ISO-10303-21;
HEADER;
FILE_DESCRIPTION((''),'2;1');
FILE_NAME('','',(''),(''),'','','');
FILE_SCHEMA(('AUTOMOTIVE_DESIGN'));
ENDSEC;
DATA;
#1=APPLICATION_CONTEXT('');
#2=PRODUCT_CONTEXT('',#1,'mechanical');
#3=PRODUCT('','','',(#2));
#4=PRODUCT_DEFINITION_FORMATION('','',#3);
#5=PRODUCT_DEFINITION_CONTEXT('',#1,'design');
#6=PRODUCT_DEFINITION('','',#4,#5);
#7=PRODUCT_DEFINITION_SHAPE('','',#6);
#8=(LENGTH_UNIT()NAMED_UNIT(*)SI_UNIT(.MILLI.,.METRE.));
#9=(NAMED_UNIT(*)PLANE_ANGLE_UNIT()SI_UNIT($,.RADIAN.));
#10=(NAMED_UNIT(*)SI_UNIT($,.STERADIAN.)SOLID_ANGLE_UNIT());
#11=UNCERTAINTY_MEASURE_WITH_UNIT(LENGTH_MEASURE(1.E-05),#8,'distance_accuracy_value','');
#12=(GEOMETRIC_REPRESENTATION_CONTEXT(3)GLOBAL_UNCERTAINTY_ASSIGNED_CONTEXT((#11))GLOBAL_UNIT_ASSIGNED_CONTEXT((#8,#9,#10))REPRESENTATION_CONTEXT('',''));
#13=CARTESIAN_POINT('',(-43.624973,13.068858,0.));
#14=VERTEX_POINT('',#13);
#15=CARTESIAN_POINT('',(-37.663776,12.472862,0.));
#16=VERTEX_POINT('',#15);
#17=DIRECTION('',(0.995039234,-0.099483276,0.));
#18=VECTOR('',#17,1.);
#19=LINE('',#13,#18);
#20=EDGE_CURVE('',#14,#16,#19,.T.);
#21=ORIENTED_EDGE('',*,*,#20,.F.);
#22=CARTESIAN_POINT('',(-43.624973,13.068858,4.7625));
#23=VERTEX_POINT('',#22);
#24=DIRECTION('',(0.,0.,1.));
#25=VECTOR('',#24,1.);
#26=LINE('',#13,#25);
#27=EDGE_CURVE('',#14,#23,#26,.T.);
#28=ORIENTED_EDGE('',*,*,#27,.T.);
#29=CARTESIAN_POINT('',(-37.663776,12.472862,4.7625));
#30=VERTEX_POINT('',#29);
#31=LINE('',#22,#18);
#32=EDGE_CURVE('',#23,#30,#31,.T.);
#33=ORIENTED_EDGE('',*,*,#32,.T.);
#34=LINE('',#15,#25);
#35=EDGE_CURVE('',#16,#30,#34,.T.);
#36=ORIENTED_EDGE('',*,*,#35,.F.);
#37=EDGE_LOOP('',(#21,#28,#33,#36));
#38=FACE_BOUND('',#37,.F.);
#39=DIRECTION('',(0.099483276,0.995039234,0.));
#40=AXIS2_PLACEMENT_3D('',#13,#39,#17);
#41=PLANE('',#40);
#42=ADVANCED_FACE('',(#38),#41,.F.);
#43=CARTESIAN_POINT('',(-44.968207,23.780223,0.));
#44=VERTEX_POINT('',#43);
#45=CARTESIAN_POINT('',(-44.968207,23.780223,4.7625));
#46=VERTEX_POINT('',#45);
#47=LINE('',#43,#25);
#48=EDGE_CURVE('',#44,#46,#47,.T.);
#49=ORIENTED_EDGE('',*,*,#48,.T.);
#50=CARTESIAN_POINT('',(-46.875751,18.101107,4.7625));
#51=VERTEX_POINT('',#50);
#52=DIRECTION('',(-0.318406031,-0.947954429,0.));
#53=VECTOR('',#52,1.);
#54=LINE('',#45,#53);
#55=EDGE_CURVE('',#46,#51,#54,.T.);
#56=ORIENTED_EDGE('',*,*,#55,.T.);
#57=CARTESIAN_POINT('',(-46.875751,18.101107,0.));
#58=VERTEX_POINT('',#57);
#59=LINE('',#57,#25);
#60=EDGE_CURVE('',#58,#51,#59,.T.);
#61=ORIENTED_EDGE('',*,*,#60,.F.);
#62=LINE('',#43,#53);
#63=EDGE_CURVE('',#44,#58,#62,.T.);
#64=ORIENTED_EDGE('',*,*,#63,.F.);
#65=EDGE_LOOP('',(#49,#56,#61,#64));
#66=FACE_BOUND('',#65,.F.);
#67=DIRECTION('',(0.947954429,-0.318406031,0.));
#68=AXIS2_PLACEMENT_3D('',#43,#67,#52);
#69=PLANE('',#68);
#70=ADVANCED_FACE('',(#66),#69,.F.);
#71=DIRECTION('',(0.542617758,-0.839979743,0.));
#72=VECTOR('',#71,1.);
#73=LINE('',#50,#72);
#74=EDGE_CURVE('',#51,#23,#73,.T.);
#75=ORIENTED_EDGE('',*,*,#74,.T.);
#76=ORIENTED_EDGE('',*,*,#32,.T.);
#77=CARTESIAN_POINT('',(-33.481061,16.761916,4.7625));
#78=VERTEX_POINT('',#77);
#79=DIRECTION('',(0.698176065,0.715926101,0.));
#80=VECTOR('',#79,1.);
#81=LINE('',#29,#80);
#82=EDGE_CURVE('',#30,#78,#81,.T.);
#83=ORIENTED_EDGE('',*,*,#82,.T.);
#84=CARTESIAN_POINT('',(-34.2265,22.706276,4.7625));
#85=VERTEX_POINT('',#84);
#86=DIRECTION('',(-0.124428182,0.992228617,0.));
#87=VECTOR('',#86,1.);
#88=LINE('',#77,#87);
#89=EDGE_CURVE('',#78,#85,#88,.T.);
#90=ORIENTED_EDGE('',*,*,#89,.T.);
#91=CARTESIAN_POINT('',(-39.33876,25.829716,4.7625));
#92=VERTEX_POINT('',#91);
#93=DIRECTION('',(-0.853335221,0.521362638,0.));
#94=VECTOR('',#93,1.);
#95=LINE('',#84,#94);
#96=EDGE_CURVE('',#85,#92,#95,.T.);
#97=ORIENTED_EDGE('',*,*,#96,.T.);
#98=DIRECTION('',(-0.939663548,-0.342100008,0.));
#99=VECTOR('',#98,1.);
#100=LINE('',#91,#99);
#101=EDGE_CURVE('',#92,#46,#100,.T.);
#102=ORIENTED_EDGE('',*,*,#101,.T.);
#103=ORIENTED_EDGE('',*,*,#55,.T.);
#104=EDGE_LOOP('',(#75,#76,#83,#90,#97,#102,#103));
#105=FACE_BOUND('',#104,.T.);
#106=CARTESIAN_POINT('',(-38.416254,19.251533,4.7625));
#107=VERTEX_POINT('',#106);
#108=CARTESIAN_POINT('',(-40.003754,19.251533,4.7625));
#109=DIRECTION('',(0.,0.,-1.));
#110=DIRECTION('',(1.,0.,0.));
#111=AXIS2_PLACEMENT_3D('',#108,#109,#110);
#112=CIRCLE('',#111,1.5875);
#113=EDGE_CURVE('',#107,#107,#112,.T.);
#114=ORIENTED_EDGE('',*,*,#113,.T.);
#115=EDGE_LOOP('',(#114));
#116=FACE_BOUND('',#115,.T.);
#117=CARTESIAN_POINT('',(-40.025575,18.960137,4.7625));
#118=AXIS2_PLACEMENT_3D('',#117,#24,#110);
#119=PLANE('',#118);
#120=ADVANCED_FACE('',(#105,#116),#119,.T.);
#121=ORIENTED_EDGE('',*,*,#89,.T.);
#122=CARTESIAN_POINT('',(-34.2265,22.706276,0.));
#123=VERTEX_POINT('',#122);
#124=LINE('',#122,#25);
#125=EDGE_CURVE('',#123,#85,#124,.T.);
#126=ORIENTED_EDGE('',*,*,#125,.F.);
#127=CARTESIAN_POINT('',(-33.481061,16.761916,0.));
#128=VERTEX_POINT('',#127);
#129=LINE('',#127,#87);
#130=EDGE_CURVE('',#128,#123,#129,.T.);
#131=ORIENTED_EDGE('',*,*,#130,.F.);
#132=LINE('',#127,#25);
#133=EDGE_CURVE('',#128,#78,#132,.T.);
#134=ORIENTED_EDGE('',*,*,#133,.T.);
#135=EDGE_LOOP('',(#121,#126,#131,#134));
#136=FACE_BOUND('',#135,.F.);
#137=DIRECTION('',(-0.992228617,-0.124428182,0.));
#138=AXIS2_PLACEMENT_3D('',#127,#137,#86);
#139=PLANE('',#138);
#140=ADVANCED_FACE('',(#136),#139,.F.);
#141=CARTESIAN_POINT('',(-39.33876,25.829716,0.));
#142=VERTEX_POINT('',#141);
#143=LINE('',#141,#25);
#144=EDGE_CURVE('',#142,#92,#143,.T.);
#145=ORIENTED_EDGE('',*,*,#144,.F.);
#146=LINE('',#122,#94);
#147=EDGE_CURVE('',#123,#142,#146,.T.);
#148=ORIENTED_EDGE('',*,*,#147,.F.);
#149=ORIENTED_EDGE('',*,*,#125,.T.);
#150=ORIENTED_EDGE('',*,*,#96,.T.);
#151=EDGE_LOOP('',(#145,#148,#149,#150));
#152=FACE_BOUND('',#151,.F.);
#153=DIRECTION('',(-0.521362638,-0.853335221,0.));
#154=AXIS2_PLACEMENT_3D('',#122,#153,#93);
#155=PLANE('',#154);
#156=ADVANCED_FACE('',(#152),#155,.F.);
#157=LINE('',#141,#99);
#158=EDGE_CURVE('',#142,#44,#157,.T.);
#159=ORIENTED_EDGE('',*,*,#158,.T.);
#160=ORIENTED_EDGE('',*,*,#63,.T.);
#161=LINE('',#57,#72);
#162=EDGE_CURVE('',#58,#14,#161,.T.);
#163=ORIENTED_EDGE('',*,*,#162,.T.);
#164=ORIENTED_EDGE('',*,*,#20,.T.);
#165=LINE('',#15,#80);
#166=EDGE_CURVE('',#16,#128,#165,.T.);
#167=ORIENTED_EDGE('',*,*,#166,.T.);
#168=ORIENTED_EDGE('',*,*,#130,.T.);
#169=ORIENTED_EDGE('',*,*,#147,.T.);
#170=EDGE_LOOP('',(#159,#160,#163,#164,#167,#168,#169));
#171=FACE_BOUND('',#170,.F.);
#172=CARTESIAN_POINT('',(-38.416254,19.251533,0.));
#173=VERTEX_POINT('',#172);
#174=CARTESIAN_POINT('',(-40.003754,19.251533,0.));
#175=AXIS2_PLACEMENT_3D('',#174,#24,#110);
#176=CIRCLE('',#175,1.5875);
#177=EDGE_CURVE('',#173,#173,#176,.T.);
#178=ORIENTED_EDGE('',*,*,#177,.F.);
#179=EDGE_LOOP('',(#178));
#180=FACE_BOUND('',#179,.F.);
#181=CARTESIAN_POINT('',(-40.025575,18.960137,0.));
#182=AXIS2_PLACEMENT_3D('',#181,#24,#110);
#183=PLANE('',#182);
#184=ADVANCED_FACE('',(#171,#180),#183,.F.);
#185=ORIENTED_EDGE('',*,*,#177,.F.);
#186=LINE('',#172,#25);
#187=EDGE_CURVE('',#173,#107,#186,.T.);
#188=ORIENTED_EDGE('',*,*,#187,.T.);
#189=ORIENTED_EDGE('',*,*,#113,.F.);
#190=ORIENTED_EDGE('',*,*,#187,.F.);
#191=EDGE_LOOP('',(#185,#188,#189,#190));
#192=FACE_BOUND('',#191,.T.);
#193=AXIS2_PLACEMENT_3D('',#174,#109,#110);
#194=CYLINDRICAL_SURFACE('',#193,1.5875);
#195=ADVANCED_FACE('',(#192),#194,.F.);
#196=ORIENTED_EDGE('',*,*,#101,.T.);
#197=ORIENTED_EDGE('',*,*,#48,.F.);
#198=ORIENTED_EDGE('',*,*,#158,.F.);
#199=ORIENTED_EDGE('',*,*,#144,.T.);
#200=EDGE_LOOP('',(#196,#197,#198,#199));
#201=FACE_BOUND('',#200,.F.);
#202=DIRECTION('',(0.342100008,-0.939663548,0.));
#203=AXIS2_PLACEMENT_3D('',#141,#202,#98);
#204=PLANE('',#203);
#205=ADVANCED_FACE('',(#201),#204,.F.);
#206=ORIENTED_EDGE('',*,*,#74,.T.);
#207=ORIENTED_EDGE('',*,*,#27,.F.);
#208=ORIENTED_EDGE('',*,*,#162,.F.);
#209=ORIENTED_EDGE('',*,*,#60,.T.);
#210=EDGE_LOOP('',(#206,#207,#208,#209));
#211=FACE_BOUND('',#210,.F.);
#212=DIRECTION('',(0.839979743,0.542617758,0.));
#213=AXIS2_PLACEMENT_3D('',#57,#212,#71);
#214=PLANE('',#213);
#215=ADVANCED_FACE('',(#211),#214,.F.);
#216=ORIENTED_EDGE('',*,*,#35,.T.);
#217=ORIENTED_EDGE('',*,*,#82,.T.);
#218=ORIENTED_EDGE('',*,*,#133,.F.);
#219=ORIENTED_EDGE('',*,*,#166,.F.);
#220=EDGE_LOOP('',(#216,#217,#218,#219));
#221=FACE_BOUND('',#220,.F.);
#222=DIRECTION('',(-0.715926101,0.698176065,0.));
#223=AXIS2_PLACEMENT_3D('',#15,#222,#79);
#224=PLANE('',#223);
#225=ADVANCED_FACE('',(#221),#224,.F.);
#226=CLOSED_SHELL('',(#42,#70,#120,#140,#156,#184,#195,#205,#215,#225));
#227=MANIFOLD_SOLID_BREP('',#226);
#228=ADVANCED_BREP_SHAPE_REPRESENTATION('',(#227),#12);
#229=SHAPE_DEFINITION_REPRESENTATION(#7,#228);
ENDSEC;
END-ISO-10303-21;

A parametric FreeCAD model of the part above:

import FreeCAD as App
import Part
import Sketcher
Q = App.Units.Quantity

doc = App.newDocument("Part")
body = doc.addObject("PartDesign::Body", "Body")

sketch1 = body.newObject("Sketcher::SketchObject", "Sketch")
sketch1.AttachmentSupport = (doc.getObject("XY_Plane"), [""])
sketch1.MapMode = "FlatFace"
sketch1.addGeometry([
    Part.LineSegment(App.Vector(-38, 12, 0), App.Vector(-33, 17, 0)),
    Part.LineSegment(App.Vector(-33, 17, 0), App.Vector(-34, 23, 0)),
    Part.LineSegment(App.Vector(-34, 23, 0), App.Vector(-39, 26, 0)),
    Part.LineSegment(App.Vector(-39, 26, 0), App.Vector(-45, 24, 0)),
    Part.LineSegment(App.Vector(-45, 24, 0), App.Vector(-47, 18, 0)),
    Part.LineSegment(App.Vector(-47, 18, 0), App.Vector(-44, 13, 0)),
    Part.LineSegment(App.Vector(-44, 13, 0), App.Vector(-38, 12, 0)),
], False)
sketch1.addConstraint([
    Sketcher.Constraint("Coincident", 0, 2, 1, 1),
    Sketcher.Constraint("Coincident", 1, 2, 2, 1),
    Sketcher.Constraint("Coincident", 2, 2, 3, 1),
    Sketcher.Constraint("Coincident", 3, 2, 4, 1),
    Sketcher.Constraint("Coincident", 4, 2, 5, 1),
    Sketcher.Constraint("Coincident", 5, 2, 6, 1),
    Sketcher.Constraint("Coincident", 6, 2, 0, 1),
    Sketcher.Constraint("Equal", 0, 1),
    Sketcher.Constraint("Equal", 1, 2),
    Sketcher.Constraint("Equal", 2, 3),
    Sketcher.Constraint("Equal", 3, 4),
    Sketcher.Constraint("Equal", 4, 5),
    Sketcher.Constraint("Equal", 5, 6),
    Sketcher.Constraint("DistanceY", 0, 2, 2, 2, Q("0.357 in")),
    Sketcher.Constraint("DistanceX", 1, 2, -1, 1, Q("1.3475 in")),
    Sketcher.Constraint("DistanceX", 4, 2, 3, 2, Q("0.0751002 in")),
    Sketcher.Constraint("DistanceX", 2, 2, 0, 2, 5.857699),
    Sketcher.Constraint("DistanceX", 0, 2, -1, 1, 33.481061),
    Sketcher.Constraint("DistanceX", 4, 2, -1, 1, 46.875751),
    Sketcher.Constraint("DistanceY", -1, 1, 6, 2, 12.472862),
    Sketcher.Constraint("DistanceX", 4, 2, 5, 2, 3.250778),
])
pad1 = body.newObject("PartDesign::Pad", "Pad")
pad1.Profile = sketch1
pad1.Length = Q("0.1875 in")

sketch2 = body.newObject("Sketcher::SketchObject", "Sketch001")
sketch2.AttachmentSupport = (doc.getObject("XY_Plane"), [""])
sketch2.MapMode = "FlatFace"
sketch2.addGeometry(Part.Circle(App.Vector(-40, 19.3, 0), App.Vector(0, 0, 1), 1.6), False)
sketch2.addConstraint([
    Sketcher.Constraint("Diameter", 0, Q("0.125 in")),
    Sketcher.Constraint("DistanceX", 0, 3, -1, 1, 40.003754),
    Sketcher.Constraint("DistanceY", -1, 1, 0, 3, 19.251533),
])
pocket1 = body.newObject("PartDesign::Pocket", "Pocket")
pocket1.Profile = sketch2
pocket1.Length = Q("0.71 in")
pocket1.Reversed = True

doc.recompute()
